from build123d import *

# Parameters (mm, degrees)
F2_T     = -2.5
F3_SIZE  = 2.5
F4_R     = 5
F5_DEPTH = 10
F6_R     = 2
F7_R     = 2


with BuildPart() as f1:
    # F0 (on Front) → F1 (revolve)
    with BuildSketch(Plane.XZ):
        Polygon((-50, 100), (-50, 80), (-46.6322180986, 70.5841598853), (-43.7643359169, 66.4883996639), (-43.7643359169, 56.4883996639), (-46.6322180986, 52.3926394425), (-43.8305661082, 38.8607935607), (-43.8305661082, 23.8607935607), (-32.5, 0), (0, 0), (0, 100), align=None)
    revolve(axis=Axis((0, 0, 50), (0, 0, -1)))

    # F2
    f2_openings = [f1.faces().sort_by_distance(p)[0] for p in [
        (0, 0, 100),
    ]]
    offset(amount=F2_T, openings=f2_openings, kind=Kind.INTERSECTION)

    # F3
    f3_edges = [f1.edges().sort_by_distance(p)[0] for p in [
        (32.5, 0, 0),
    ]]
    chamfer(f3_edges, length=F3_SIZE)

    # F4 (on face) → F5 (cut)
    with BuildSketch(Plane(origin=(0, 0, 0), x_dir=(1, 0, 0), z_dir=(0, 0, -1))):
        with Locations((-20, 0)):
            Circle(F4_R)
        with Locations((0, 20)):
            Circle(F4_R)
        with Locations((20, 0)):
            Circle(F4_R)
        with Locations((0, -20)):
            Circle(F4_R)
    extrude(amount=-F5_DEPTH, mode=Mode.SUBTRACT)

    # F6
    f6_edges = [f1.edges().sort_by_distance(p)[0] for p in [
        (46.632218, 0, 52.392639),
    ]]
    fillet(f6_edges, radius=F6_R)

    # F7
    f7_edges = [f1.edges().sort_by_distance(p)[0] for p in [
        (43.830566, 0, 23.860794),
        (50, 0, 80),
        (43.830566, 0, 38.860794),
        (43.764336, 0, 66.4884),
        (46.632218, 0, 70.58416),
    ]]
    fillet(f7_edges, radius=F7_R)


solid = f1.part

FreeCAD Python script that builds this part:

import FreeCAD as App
import Part
import Sketcher

V = App.Vector
Q = App.Units.Quantity


def edges_at(feature, points):
    """Names of the edges that pass closest to the given points."""
    edges = feature.Shape.Edges
    near = lambda p: min(range(len(edges)), key=lambda i: edges[i].distToShape(Part.Vertex(*p))[0])
    return sorted({f"Edge{near(p) + 1}" for p in points})


def faces_at(feature, points):
    """Names of the faces that lie closest to the given points."""
    faces = feature.Shape.Faces
    near = lambda p: min(range(len(faces)), key=lambda i: faces[i].distToShape(Part.Vertex(*p))[0])
    return sorted({f"Face{near(p) + 1}" for p in points})

doc = App.newDocument("Part")
params = doc.addObject("Spreadsheet::Sheet", "Params")
for row, (alias, value) in enumerate([
    ("sketch1_width", "50 mm"),
    ("sketch1_height", "20 mm"),
    ("sketch1_height2", "10 mm"),
    ("sketch1_height3", "15 mm"),
    ("sketch1_height4", "100 mm"),
    ("revolution_angle", "360 deg"),
    ("thickness_wall", "2.5 mm"),
    ("chamfer_size", "2.5 mm"),
    ("sketch2_diameter", "10 mm"),
    ("pocket1_length", "10 mm"),
    ("fillet_radius", "2 mm"),
    ("fillet2_radius", "2 mm"),
], start=1):
    params.set(f"A{row}", alias)
    params.set(f"B{row}", "=" + value)
    params.setAlias(f"B{row}", alias)

body = doc.addObject("PartDesign::Body", "Body")

# Sketch on XZ plane
sketch1 = body.newObject("Sketcher::SketchObject", "Sketch")
sketch1.AttachmentSupport = (doc.getObject("XZ_Plane"), [""])
sketch1.MapMode = "FlatFace"
sketch1.addGeometry(Part.LineSegment(V(-50, 100, 0), V(-50, 80, 0)), False)
sketch1.addGeometry(Part.LineSegment(V(-50, 80, 0), V(-46.632218, 70.58416, 0)), False)
sketch1.addGeometry(Part.LineSegment(V(-46.632218, 70.58416, 0), V(-43.764336, 66.4884, 0)), False)
sketch1.addGeometry(Part.LineSegment(V(-43.764336, 66.4884, 0), V(-43.764336, 56.4884, 0)), False)
sketch1.addGeometry(Part.LineSegment(V(-43.764336, 56.4884, 0), V(-46.632218, 52.392639, 0)), False)
sketch1.addGeometry(Part.LineSegment(V(-46.632218, 52.392639, 0), V(-43.830566, 38.860794, 0)), False)
sketch1.addGeometry(Part.LineSegment(V(-43.830566, 38.860794, 0), V(-43.830566, 23.860794, 0)), False)
sketch1.addGeometry(Part.LineSegment(V(-43.830566, 23.860794, 0), V(-32.5, 0, 0)), False)
sketch1.addGeometry(Part.LineSegment(V(-32.5, 0, 0), V(0, 0, 0)), False)
sketch1.addGeometry(Part.LineSegment(V(0, 0, 0), V(0, 100, 0)), False)
sketch1.addGeometry(Part.LineSegment(V(0, 100, 0), V(-50, 100, 0)), False)
sketch1.addConstraint(Sketcher.Constraint("Coincident", 0, 2, 1, 1))
sketch1.addConstraint(Sketcher.Constraint("Coincident", 1, 2, 2, 1))
sketch1.addConstraint(Sketcher.Constraint("Coincident", 2, 2, 3, 1))
sketch1.addConstraint(Sketcher.Constraint("Coincident", 3, 2, 4, 1))
sketch1.addConstraint(Sketcher.Constraint("Coincident", 4, 2, 5, 1))
sketch1.addConstraint(Sketcher.Constraint("Coincident", 5, 2, 6, 1))
sketch1.addConstraint(Sketcher.Constraint("Coincident", 6, 2, 7, 1))
sketch1.addConstraint(Sketcher.Constraint("Coincident", 7, 2, 8, 1))
sketch1.addConstraint(Sketcher.Constraint("Coincident", 8, 2, 9, 1))
sketch1.addConstraint(Sketcher.Constraint("Coincident", 9, 2, 10, 1))
sketch1.addConstraint(Sketcher.Constraint("Coincident", 10, 2, 0, 1))
sketch1.addConstraint(Sketcher.Constraint("Vertical", 0))
sketch1.addConstraint(Sketcher.Constraint("Vertical", 3))
sketch1.addConstraint(Sketcher.Constraint("Vertical", 6))
sketch1.addConstraint(Sketcher.Constraint("Horizontal", 8))
sketch1.addConstraint(Sketcher.Constraint("Vertical", 9))
sketch1.addConstraint(Sketcher.Constraint("Horizontal", 10))
sketch1.addConstraint(Sketcher.Constraint("Coincident", 8, 2, -1, 1))
sketch1.addConstraint(Sketcher.Constraint("Vertical", 1, 2, 4, 2))
sketch1.addConstraint(Sketcher.Constraint("Equal", 2, 4))
sketch1.addConstraint(Sketcher.Constraint("DistanceX", 10, 2, 10, 1, Q("50 mm")))
sketch1.addConstraint(Sketcher.Constraint("DistanceY", 0, 2, 0, 1, Q("20 mm")))
sketch1.addConstraint(Sketcher.Constraint("DistanceY", 3, 2, 3, 1, Q("10 mm")))
sketch1.addConstraint(Sketcher.Constraint("DistanceY", 6, 2, 6, 1, Q("15 mm")))
sketch1.addConstraint(Sketcher.Constraint("DistanceY", 9, 1, 9, 2, Q("100 mm")))
sketch1.addConstraint(Sketcher.Constraint("Angle", 2, Q("-55 deg")))
sketch1.addConstraint(Sketcher.Constraint("Distance", 1, Q("10 mm")))
sketch1.addConstraint(Sketcher.Constraint("Distance", 2, Q("5 mm")))
sketch1.addConstraint(Sketcher.Constraint("DistanceX", 8, 1, 8, 2, Q("32.5 mm")))
sketch1.addConstraint(Sketcher.Constraint("DistanceY", -1, 1, 2, 2, Q("66.4884 mm")))
sketch1.addConstraint(Sketcher.Constraint("Distance", 5, Q("13.818832 mm")))
sketch1.addConstraint(Sketcher.Constraint("DistanceX", 4, 2, 5, 2, Q("2.801652 mm")))
sketch1.setExpression("Constraints[20]", "Params.sketch1_width")
sketch1.setExpression("Constraints[21]", "Params.sketch1_height")
sketch1.setExpression("Constraints[22]", "Params.sketch1_height2")
sketch1.setExpression("Constraints[23]", "Params.sketch1_height3")
sketch1.setExpression("Constraints[24]", "Params.sketch1_height4")
revolution = body.newObject("PartDesign::Revolution", "Revolution")
revolution.Profile = sketch1
revolution.ReferenceAxis = (sketch1, ["V_Axis"])
revolution.setExpression("Angle", "Params.revolution_angle")
doc.recompute()

thickness = body.newObject("PartDesign::Thickness", "Thickness")
thickness.Base = (revolution, faces_at(revolution, [(0, 0, 100)]))
thickness.setExpression("Value", "Params.thickness_wall")
thickness.Reversed = True
thickness.Join = "Intersection"
doc.recompute()

chamfer = body.newObject("PartDesign::Chamfer", "Chamfer")
chamfer.Base = (thickness, edges_at(thickness, [(32.5, 0, 0)]))
chamfer.setExpression("Size", "Params.chamfer_size")

# Sketch on XY plane
sketch2 = body.newObject("Sketcher::SketchObject", "Sketch001")
sketch2.AttachmentSupport = (doc.getObject("XY_Plane"), [""])
sketch2.MapMode = "FlatFace"
sketch2.addGeometry(Part.Circle(V(-20, 0, 0), V(0, 0, 1), 5), False)
sketch2.addGeometry(Part.Circle(V(0, -20, 0), V(0, 0, 1), 5), False)
sketch2.addGeometry(Part.Circle(V(20, 0, 0), V(0, 0, 1), 5), False)
sketch2.addGeometry(Part.Circle(V(0, 20, 0), V(0, 0, 1), 5), False)
sketch2.addConstraint(Sketcher.Constraint("Equal", 0, 1))
sketch2.addConstraint(Sketcher.Constraint("Equal", 1, 2))
sketch2.addConstraint(Sketcher.Constraint("Equal", 2, 3))
sketch2.addConstraint(Sketcher.Constraint("Symmetric", 0, 3, 2, 3, -1, 1))
sketch2.addConstraint(Sketcher.Constraint("Symmetric", 1, 3, 3, 3, -1, 1))
sketch2.addConstraint(Sketcher.Constraint("PointOnObject", 0, 3, -1))
sketch2.addConstraint(Sketcher.Constraint("PointOnObject", 1, 3, -2))
sketch2.addConstraint(Sketcher.Constraint("Diameter", 0, Q("10 mm")))
sketch2.addConstraint(Sketcher.Constraint("DistanceX", 0, 3, -1, 1, Q("20 mm")))
sketch2.addConstraint(Sketcher.Constraint("DistanceY", 1, 3, -1, 1, Q("20 mm")))
sketch2.setExpression("Constraints[7]", "Params.sketch2_diameter")
pocket1 = body.newObject("PartDesign::Pocket", "Pocket")
pocket1.Profile = sketch2
pocket1.setExpression("Length", "Params.pocket1_length")
pocket1.Reversed = True
doc.recompute()

fillet = body.newObject("PartDesign::Fillet", "Fillet")
fillet.Base = (pocket1, edges_at(pocket1, [(46.632, 0, 52.393)]))
fillet.setExpression("Radius", "Params.fillet_radius")
doc.recompute()

fillet2 = body.newObject("PartDesign::Fillet", "Fillet001")
fillet2.Base = (fillet, edges_at(fillet, [
    (43.831, 0, 23.861),
    (50, 0, 80),
    (43.831, 0, 38.861),
    (43.764, 0, 66.488),
    (46.632, 0, 70.584),
]))
fillet2.setExpression("Radius", "Params.fillet2_radius")

doc.recompute()
